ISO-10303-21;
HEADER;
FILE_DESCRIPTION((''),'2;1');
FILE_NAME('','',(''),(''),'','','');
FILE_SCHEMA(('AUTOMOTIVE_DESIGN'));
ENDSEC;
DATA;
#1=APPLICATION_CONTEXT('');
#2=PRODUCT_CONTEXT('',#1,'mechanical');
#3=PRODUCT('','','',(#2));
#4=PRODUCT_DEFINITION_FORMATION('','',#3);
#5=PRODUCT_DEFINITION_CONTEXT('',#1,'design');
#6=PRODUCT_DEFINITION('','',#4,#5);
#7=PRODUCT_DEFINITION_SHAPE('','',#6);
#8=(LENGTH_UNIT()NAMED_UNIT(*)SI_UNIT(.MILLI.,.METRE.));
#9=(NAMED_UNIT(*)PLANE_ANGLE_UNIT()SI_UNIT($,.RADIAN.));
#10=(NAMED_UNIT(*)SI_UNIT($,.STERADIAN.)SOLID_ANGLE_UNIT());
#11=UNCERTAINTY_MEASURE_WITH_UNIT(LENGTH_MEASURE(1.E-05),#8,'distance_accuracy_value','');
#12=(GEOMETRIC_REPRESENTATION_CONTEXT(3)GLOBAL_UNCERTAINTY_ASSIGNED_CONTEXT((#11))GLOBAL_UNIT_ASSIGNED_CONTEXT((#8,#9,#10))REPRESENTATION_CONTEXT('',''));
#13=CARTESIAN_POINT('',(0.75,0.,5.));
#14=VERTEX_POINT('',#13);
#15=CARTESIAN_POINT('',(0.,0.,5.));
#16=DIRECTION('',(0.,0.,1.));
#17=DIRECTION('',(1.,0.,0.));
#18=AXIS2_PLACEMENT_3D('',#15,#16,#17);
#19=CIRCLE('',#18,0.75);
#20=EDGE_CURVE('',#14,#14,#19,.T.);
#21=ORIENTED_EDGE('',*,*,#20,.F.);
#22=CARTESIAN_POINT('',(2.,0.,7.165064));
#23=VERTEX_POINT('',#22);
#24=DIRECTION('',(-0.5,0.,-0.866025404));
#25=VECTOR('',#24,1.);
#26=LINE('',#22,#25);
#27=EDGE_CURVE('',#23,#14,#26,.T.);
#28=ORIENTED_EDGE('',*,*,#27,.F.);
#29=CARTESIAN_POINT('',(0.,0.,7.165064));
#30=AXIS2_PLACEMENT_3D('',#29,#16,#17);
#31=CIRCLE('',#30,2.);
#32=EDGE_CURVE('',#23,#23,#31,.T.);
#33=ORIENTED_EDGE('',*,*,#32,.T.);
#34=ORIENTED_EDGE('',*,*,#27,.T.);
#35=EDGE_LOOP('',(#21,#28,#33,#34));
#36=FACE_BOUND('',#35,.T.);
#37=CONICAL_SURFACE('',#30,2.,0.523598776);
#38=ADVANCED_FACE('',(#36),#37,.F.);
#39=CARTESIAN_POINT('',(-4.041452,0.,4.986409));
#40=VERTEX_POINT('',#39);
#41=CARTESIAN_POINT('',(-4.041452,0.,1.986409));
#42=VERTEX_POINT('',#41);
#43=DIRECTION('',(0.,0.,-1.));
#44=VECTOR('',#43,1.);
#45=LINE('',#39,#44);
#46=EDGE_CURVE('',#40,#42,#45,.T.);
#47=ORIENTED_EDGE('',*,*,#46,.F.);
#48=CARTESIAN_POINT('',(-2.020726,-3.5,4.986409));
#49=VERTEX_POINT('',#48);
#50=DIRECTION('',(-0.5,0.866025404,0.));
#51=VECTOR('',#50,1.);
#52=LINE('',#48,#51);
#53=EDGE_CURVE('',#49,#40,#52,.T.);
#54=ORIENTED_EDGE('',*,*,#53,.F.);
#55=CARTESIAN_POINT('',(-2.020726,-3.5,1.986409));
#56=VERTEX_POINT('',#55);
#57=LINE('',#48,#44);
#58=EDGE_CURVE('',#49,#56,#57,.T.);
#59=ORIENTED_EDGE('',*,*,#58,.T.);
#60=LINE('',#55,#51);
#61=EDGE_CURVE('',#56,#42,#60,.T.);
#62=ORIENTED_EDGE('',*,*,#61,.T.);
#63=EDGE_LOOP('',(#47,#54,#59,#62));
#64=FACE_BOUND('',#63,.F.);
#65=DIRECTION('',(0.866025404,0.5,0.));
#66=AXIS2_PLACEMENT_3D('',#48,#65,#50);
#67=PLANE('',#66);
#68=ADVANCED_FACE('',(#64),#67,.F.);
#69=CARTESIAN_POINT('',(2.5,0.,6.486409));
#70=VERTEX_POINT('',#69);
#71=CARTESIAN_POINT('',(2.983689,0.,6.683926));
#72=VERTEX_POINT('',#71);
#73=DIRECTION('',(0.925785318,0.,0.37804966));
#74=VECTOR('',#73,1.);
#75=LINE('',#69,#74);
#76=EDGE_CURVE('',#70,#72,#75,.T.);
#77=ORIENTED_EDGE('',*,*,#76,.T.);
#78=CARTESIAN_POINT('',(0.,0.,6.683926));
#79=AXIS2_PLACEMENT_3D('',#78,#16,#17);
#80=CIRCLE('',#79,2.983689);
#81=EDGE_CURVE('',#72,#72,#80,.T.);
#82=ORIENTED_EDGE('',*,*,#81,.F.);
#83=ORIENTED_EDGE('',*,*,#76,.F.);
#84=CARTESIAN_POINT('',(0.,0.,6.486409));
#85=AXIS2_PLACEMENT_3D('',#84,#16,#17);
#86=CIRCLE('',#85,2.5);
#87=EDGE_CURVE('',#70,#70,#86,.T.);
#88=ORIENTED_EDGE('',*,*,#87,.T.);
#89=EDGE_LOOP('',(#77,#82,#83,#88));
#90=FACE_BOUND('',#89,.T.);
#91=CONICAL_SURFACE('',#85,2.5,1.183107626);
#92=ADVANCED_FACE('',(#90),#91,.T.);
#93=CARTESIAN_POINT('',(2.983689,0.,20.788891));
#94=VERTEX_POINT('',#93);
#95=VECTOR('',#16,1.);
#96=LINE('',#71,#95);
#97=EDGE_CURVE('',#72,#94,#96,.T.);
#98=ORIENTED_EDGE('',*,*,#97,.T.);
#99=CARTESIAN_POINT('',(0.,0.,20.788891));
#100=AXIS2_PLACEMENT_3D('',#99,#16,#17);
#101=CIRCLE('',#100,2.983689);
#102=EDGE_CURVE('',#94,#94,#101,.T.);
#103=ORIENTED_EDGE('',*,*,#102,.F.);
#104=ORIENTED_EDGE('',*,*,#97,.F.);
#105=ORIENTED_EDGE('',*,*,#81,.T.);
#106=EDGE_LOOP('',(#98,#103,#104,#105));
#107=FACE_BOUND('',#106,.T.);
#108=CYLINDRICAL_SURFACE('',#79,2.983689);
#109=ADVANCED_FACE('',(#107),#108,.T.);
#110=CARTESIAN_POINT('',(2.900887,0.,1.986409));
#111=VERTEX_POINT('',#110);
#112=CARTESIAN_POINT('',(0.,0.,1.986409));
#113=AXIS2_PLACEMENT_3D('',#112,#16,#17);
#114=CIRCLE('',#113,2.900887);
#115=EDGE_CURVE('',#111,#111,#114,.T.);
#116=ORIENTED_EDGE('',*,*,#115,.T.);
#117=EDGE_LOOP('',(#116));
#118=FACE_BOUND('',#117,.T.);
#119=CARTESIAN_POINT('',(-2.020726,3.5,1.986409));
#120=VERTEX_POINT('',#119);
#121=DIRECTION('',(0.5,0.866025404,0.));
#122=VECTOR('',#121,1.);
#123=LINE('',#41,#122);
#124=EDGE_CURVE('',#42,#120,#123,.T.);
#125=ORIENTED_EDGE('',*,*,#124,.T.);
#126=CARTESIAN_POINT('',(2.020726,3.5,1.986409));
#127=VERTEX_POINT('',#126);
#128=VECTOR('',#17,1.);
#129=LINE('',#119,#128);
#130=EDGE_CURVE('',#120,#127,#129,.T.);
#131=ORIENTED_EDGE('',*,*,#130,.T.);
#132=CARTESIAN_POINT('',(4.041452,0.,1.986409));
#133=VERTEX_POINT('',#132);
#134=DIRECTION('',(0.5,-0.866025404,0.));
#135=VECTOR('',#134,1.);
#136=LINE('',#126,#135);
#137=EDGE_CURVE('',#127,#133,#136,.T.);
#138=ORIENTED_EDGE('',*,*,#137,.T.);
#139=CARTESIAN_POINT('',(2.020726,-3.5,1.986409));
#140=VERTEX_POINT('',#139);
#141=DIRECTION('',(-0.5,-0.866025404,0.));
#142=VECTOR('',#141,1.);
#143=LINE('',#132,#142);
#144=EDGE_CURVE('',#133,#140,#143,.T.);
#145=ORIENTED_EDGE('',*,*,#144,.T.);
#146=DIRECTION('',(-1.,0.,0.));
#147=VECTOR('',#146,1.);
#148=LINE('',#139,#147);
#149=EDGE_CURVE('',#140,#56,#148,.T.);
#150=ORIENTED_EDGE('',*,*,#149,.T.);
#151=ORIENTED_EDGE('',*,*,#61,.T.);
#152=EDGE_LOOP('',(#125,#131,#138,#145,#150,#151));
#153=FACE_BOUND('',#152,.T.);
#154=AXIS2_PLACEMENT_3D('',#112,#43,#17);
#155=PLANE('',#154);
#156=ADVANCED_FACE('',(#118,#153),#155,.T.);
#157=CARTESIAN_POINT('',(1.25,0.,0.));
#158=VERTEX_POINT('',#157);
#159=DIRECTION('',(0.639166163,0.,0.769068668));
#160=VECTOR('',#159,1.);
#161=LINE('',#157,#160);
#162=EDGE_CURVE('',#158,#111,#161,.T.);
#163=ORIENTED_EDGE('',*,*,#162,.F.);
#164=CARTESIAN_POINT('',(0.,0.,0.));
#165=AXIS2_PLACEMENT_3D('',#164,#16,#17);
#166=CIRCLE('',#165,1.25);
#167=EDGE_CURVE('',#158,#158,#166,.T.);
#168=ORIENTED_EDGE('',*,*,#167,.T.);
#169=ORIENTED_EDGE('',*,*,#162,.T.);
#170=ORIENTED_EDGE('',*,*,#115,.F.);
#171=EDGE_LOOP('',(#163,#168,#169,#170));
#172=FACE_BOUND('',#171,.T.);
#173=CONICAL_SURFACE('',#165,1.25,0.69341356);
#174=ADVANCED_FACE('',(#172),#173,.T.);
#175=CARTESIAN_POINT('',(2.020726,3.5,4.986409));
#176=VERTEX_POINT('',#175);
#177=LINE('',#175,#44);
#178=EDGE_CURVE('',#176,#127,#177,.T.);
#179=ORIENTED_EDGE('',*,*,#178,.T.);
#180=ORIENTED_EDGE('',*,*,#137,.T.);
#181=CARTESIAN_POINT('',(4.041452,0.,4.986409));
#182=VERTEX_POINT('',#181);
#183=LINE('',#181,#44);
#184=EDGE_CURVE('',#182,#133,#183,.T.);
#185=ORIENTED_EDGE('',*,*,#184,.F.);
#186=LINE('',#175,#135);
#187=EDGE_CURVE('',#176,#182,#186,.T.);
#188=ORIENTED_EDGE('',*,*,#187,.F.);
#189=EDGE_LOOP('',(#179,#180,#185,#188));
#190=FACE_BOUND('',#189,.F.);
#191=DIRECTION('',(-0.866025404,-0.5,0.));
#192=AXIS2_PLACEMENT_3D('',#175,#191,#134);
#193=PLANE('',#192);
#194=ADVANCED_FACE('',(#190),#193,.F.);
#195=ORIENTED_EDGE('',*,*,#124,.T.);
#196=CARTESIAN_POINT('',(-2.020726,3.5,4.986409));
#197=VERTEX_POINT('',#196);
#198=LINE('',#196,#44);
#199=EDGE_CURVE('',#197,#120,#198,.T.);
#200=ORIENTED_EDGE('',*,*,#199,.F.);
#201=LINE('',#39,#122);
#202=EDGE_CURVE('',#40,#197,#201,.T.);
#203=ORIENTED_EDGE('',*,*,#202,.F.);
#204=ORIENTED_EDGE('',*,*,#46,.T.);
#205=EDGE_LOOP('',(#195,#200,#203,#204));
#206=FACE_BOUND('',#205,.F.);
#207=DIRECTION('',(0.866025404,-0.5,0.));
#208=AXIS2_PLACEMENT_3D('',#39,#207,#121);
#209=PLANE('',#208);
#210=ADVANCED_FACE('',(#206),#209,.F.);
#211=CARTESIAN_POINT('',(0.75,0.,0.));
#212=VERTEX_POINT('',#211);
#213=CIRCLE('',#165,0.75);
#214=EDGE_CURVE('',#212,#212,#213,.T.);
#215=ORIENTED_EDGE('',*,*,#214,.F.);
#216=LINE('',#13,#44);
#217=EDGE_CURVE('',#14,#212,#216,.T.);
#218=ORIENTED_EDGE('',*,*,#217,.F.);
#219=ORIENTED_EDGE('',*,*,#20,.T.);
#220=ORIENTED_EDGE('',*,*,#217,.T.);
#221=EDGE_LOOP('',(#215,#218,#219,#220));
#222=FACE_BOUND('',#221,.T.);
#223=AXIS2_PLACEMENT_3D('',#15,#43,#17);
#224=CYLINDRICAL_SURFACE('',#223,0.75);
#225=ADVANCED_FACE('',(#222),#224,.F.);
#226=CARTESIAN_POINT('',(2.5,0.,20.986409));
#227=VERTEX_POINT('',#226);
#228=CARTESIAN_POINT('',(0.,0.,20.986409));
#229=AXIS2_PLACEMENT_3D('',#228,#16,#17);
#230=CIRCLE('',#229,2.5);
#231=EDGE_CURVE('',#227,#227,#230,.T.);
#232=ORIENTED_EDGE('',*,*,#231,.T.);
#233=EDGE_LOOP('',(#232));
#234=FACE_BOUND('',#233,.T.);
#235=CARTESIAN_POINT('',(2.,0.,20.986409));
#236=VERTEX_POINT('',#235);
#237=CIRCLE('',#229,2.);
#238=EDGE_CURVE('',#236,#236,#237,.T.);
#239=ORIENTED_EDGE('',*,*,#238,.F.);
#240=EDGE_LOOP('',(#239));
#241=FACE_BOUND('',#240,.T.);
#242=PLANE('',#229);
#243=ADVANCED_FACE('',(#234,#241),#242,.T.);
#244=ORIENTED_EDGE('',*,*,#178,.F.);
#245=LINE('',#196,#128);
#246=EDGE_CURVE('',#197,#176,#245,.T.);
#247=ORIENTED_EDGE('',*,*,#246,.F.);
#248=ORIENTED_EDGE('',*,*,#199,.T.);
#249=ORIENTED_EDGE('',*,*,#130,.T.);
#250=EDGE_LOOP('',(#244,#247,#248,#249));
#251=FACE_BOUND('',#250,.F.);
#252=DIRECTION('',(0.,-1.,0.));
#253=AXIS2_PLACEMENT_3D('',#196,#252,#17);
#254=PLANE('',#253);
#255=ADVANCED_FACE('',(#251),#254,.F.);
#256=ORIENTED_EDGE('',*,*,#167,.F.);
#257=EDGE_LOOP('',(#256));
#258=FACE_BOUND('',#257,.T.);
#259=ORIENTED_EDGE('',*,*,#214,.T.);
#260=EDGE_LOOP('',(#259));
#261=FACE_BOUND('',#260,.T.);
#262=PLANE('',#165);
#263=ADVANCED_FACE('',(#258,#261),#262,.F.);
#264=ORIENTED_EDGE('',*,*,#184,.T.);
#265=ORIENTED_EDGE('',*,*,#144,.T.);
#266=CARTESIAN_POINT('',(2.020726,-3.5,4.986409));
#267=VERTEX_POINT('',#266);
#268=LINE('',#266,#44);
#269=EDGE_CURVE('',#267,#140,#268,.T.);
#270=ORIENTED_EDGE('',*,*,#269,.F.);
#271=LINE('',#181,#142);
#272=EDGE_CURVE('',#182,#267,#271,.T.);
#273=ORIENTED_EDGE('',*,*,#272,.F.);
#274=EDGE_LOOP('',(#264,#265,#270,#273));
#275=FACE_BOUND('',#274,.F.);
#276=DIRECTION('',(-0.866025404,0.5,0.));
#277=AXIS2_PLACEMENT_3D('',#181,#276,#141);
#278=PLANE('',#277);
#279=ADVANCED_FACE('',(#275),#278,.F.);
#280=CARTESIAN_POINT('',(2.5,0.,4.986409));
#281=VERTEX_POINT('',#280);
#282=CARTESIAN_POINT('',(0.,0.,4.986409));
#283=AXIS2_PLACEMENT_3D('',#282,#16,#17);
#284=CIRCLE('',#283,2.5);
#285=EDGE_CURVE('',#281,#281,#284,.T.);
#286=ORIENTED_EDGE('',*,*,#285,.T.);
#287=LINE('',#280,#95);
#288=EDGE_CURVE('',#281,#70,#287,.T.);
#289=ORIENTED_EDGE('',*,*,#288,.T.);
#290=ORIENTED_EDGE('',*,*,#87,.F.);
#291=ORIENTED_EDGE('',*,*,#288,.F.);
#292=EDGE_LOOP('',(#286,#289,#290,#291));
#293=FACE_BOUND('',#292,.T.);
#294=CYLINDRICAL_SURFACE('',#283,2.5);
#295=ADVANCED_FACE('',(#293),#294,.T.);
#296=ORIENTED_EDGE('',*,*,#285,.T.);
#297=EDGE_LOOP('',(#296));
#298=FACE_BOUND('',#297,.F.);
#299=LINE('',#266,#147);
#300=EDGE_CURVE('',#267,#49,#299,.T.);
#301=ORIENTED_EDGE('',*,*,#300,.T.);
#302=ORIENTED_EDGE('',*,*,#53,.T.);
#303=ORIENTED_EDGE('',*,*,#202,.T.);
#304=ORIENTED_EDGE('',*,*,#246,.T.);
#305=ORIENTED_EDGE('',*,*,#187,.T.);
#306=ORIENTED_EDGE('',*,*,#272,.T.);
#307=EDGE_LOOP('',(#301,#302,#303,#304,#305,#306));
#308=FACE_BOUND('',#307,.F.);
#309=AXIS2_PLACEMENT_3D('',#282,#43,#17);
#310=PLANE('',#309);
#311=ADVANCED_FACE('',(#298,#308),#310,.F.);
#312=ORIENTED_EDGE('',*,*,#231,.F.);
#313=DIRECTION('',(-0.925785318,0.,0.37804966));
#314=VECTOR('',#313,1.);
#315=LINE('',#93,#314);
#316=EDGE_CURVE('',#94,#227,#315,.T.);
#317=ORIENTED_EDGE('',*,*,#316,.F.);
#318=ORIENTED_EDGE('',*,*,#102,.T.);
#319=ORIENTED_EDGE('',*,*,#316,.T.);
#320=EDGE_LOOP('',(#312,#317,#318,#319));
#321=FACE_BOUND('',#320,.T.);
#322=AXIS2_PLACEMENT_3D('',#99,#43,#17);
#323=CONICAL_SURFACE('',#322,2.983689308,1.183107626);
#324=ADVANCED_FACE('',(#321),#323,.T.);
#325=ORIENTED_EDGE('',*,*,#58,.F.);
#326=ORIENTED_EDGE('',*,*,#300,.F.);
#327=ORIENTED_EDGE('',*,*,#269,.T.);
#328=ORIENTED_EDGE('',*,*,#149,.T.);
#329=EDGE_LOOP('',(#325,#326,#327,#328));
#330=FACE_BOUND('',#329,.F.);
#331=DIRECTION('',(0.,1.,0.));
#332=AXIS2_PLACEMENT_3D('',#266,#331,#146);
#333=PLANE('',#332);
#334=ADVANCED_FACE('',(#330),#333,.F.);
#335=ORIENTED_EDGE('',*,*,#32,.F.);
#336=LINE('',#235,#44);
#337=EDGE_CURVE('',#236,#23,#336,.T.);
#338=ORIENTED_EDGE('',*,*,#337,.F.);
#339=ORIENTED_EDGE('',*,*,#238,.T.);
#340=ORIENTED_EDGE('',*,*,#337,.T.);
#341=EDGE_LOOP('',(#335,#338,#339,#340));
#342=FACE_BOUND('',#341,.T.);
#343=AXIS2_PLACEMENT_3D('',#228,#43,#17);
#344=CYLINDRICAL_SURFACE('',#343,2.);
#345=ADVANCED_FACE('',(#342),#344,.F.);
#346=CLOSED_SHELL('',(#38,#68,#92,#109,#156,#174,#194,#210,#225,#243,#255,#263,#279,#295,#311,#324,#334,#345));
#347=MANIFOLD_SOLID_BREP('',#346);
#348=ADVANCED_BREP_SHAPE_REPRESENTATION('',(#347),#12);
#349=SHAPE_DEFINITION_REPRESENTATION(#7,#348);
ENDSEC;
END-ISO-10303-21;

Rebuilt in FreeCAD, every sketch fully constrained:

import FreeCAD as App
import Part
import Sketcher

V = App.Vector
Q = App.Units.Quantity

doc = App.newDocument("Part")
body = doc.addObject("PartDesign::Body", "Body")

sketch1 = doc.addObject("Sketcher::SketchObject", "Sketch")
body.addObject(sketch1)
sketch1.AttachmentSupport = (doc.XZ_Plane, [""])
sketch1.MapMode = "FlatFace"
sketch1.addGeometry(Part.LineSegment(V(-21.42, -4.81, 0), V(-21.42, -9.81, 0)), False)
sketch1.addGeometry(Part.LineSegment(V(-21.42, -9.81, 0), V(-20.92, -9.81, 0)), False)
sketch1.addGeometry(Part.LineSegment(V(-20.92, -9.81, 0), V(-19.27, -7.82, 0)), False)
sketch1.addGeometry(Part.LineSegment(V(-19.27, -7.82, 0), V(-20.15, -7.82, 0)), False)
sketch1.addGeometry(Part.LineSegment(V(-20.15, -7.82, 0), V(-20.15, -4.82, 0)), False)
sketch1.addGeometry(Part.LineSegment(V(-20.15, -4.82, 0), V(-19.67, -4.82, 0)), False)
sketch1.addGeometry(Part.LineSegment(V(-19.67, -4.82, 0), V(-19.67, -3.32, 0)), False)
sketch1.addGeometry(Part.LineSegment(V(-19.67, -3.32, 0), V(-19.19, -3.13, 0)), False)
sketch1.addGeometry(Part.LineSegment(V(-19.19, -3.13, 0), V(-19.19, 10.98, 0)), False)
sketch1.addGeometry(Part.LineSegment(V(-19.19, 10.98, 0), V(-19.67, 11.18, 0)), False)
sketch1.addGeometry(Part.LineSegment(V(-19.67, 11.18, 0), V(-20.17, 11.18, 0)), False)
sketch1.addGeometry(Part.LineSegment(V(-20.17, 11.18, 0), V(-20.17, -2.64, 0)), False)
sketch1.addGeometry(Part.LineSegment(V(-20.17, -2.64, 0), V(-21.42, -4.81, 0)), False)
sketch1.addGeometry(Part.LineSegment(V(-22.17, -9.81, 0), V(-22.17, 11.18, 0)), True)
sketch1.addConstraint(Sketcher.Constraint("Coincident", 0, 2, 1, 1))
sketch1.addConstraint(Sketcher.Constraint("Coincident", 1, 2, 2, 1))
sketch1.addConstraint(Sketcher.Constraint("Coincident", 2, 2, 3, 1))
sketch1.addConstraint(Sketcher.Constraint("Coincident", 3, 2, 4, 1))
sketch1.addConstraint(Sketcher.Constraint("Coincident", 4, 2, 5, 1))
sketch1.addConstraint(Sketcher.Constraint("Coincident", 5, 2, 6, 1))
sketch1.addConstraint(Sketcher.Constraint("Coincident", 6, 2, 7, 1))
sketch1.addConstraint(Sketcher.Constraint("Coincident", 7, 2, 8, 1))
sketch1.addConstraint(Sketcher.Constraint("Coincident", 8, 2, 9, 1))
sketch1.addConstraint(Sketcher.Constraint("Coincident", 9, 2, 10, 1))
sketch1.addConstraint(Sketcher.Constraint("Coincident", 10, 2, 11, 1))
sketch1.addConstraint(Sketcher.Constraint("Coincident", 11, 2, 12, 1))
sketch1.addConstraint(Sketcher.Constraint("Coincident", 12, 2, 0, 1))
sketch1.addConstraint(Sketcher.Constraint("Vertical", 0))
sketch1.addConstraint(Sketcher.Constraint("Horizontal", 1))
sketch1.addConstraint(Sketcher.Constraint("Horizontal", 3))
sketch1.addConstraint(Sketcher.Constraint("Vertical", 4))
sketch1.addConstraint(Sketcher.Constraint("Horizontal", 5))
sketch1.addConstraint(Sketcher.Constraint("Vertical", 6))
sketch1.addConstraint(Sketcher.Constraint("Vertical", 8))
sketch1.addConstraint(Sketcher.Constraint("Horizontal", 10))
sketch1.addConstraint(Sketcher.Constraint("Vertical", 11))
sketch1.addConstraint(Sketcher.Constraint("Vertical", 13))
sketch1.addConstraint(Sketcher.Constraint("Horizontal", 1, 2, 13, 1))
sketch1.addConstraint(Sketcher.Constraint("Horizontal", 10, 2, 13, 2))
sketch1.addConstraint(Sketcher.Constraint("Vertical", 6, 2, 9, 2))
sketch1.addConstraint(Sketcher.Constraint("Equal", 1, 10))
sketch1.addConstraint(Sketcher.Constraint("Equal", 7, 9))
sketch1.addConstraint(Sketcher.Constraint("DistanceY", 0, 2, 0, 1, Q("5 mm")))
sketch1.addConstraint(Sketcher.Constraint("DistanceY", 4, 1, 4, 2, Q("3 mm")))
sketch1.addConstraint(Sketcher.Constraint("Angle", 12, Q("-120 deg")))
sketch1.addConstraint(Sketcher.Constraint("DistanceX", 1, 1, 1, 2, Q("0.5 mm")))
sketch1.addConstraint(Sketcher.Constraint("DistanceY", 6, 1, 6, 2, Q("1.5 mm")))
sketch1.addConstraint(Sketcher.Constraint("DistanceY", 5, 2, 9, 2, Q("16 mm")))
sketch1.addConstraint(Sketcher.Constraint("DistanceX", 13, 2, 10, 2, Q("2 mm")))
sketch1.addConstraint(Sketcher.Constraint("Distance", 12, Q("2.5 mm")))
sketch1.addConstraint(Sketcher.Constraint("DistanceX", 3, 2, 3, 1, Q("0.880161 mm")))
sketch1.addConstraint(Sketcher.Constraint("DistanceY", 13, 1, 13, 2, Q("20.986409 mm")))
sketch1.addConstraint(Sketcher.Constraint("DistanceX", 5, 1, 5, 2, Q("0.479274 mm")))
sketch1.addConstraint(Sketcher.Constraint("DistanceY", 8, 1, 8, 2, Q("14.104965 mm")))
sketch1.addConstraint(Sketcher.Constraint("DistanceX", 2, 2, -1, 1, Q("19.272028 mm")))
sketch1.addConstraint(Sketcher.Constraint("DistanceY", 7, 2, -1, 1, Q("3.12525 mm")))
sketch1.addConstraint(Sketcher.Constraint("DistanceX", 6, 2, 7, 2, Q("0.483689 mm")))
revolution = doc.addObject("PartDesign::Revolution", "Revolution")
body.addObject(revolution)
revolution.Profile = sketch1
revolution.ReferenceAxis = (sketch1, ["Axis0"])
revolution.Angle = 360

sketch2 = doc.addObject("Sketcher::SketchObject", "Sketch001")
body.addObject(sketch2)
sketch2.AttachmentSupport = (doc.XY_Plane, [""])
sketch2.MapMode = "FlatFace"
sketch2.AttachmentOffset = App.Placement(V(0, 0, -4.822767), App.Rotation())
sketch2.addGeometry(Part.LineSegment(V(-20.2, -3.5, 0), V(-24.2, -3.5, 0)), False)
sketch2.addGeometry(Part.LineSegment(V(-24.2, -3.5, 0), V(-26.2, 0, 0)), False)
sketch2.addGeometry(Part.LineSegment(V(-26.2, 0, 0), V(-24.2, 3.5, 0)), False)
sketch2.addGeometry(Part.LineSegment(V(-24.2, 3.5, 0), V(-20.2, 3.5, 0)), False)
sketch2.addGeometry(Part.LineSegment(V(-20.2, 3.5, 0), V(-18.1, 0, 0)), False)
sketch2.addGeometry(Part.LineSegment(V(-18.1, 0, 0), V(-20.2, -3.5, 0)), False)
sketch2.addGeometry(Part.Circle(V(-22.2, 0, 0), V(0, 0, 1), 2), False)
sketch2.addConstraint(Sketcher.Constraint("Coincident", 0, 2, 1, 1))
sketch2.addConstraint(Sketcher.Constraint("Coincident", 1, 2, 2, 1))
sketch2.addConstraint(Sketcher.Constraint("Coincident", 2, 2, 3, 1))
sketch2.addConstraint(Sketcher.Constraint("Coincident", 3, 2, 4, 1))
sketch2.addConstraint(Sketcher.Constraint("Coincident", 4, 2, 5, 1))
sketch2.addConstraint(Sketcher.Constraint("Coincident", 5, 2, 0, 1))
sketch2.addConstraint(Sketcher.Constraint("Horizontal", 0))
sketch2.addConstraint(Sketcher.Constraint("Horizontal", 3))
sketch2.addConstraint(Sketcher.Constraint("Symmetric", 0, 2, 2, 2, -1))
sketch2.addConstraint(Sketcher.Constraint("PointOnObject", 6, 3, -1))
sketch2.addConstraint(Sketcher.Constraint("PointOnObject", 1, 2, -1))
sketch2.addConstraint(Sketcher.Constraint("PointOnObject", 4, 2, -1))
sketch2.addConstraint(Sketcher.Constraint("Parallel", 1, 4))
sketch2.addConstraint(Sketcher.Constraint("Parallel", 2, 5))
sketch2.addConstraint(Sketcher.Constraint("Angle", 1, Q("120 deg")))
sketch2.addConstraint(Sketcher.Constraint("DistanceY", 0, 2, 2, 2, Q("7 mm")))
sketch2.addConstraint(Sketcher.Constraint("Diameter", 6, Q("4.041452 mm")))
sketch2.addConstraint(Sketcher.Constraint("DistanceX", 0, 2, 0, 1, Q("4.041452 mm")))
sketch2.addConstraint(Sketcher.Constraint("DistanceX", 0, 2, -1, 1, Q("24.193641 mm")))
sketch2.addConstraint(Sketcher.Constraint("DistanceX", 1, 2, 6, 3, Q("4.041452 mm")))
pad1 = doc.addObject("PartDesign::Pad", "Pad")
body.addObject(pad1)
pad1.Profile = sketch2
pad1.Length = 3
pad1.Reversed = True
body2 = doc.addObject("PartDesign::Body", "Body001")
doc.recompute()

body.Placement = App.Placement(V(22.172915, 0, 9.809176), App.Rotation(V(0, 0, 1), 0))
boolean = doc.addObject("PartDesign::Boolean", "Boolean")
body2.addObject(boolean)
boolean.Type = "Fuse"
boolean.addObjects([body])

doc.recompute()
